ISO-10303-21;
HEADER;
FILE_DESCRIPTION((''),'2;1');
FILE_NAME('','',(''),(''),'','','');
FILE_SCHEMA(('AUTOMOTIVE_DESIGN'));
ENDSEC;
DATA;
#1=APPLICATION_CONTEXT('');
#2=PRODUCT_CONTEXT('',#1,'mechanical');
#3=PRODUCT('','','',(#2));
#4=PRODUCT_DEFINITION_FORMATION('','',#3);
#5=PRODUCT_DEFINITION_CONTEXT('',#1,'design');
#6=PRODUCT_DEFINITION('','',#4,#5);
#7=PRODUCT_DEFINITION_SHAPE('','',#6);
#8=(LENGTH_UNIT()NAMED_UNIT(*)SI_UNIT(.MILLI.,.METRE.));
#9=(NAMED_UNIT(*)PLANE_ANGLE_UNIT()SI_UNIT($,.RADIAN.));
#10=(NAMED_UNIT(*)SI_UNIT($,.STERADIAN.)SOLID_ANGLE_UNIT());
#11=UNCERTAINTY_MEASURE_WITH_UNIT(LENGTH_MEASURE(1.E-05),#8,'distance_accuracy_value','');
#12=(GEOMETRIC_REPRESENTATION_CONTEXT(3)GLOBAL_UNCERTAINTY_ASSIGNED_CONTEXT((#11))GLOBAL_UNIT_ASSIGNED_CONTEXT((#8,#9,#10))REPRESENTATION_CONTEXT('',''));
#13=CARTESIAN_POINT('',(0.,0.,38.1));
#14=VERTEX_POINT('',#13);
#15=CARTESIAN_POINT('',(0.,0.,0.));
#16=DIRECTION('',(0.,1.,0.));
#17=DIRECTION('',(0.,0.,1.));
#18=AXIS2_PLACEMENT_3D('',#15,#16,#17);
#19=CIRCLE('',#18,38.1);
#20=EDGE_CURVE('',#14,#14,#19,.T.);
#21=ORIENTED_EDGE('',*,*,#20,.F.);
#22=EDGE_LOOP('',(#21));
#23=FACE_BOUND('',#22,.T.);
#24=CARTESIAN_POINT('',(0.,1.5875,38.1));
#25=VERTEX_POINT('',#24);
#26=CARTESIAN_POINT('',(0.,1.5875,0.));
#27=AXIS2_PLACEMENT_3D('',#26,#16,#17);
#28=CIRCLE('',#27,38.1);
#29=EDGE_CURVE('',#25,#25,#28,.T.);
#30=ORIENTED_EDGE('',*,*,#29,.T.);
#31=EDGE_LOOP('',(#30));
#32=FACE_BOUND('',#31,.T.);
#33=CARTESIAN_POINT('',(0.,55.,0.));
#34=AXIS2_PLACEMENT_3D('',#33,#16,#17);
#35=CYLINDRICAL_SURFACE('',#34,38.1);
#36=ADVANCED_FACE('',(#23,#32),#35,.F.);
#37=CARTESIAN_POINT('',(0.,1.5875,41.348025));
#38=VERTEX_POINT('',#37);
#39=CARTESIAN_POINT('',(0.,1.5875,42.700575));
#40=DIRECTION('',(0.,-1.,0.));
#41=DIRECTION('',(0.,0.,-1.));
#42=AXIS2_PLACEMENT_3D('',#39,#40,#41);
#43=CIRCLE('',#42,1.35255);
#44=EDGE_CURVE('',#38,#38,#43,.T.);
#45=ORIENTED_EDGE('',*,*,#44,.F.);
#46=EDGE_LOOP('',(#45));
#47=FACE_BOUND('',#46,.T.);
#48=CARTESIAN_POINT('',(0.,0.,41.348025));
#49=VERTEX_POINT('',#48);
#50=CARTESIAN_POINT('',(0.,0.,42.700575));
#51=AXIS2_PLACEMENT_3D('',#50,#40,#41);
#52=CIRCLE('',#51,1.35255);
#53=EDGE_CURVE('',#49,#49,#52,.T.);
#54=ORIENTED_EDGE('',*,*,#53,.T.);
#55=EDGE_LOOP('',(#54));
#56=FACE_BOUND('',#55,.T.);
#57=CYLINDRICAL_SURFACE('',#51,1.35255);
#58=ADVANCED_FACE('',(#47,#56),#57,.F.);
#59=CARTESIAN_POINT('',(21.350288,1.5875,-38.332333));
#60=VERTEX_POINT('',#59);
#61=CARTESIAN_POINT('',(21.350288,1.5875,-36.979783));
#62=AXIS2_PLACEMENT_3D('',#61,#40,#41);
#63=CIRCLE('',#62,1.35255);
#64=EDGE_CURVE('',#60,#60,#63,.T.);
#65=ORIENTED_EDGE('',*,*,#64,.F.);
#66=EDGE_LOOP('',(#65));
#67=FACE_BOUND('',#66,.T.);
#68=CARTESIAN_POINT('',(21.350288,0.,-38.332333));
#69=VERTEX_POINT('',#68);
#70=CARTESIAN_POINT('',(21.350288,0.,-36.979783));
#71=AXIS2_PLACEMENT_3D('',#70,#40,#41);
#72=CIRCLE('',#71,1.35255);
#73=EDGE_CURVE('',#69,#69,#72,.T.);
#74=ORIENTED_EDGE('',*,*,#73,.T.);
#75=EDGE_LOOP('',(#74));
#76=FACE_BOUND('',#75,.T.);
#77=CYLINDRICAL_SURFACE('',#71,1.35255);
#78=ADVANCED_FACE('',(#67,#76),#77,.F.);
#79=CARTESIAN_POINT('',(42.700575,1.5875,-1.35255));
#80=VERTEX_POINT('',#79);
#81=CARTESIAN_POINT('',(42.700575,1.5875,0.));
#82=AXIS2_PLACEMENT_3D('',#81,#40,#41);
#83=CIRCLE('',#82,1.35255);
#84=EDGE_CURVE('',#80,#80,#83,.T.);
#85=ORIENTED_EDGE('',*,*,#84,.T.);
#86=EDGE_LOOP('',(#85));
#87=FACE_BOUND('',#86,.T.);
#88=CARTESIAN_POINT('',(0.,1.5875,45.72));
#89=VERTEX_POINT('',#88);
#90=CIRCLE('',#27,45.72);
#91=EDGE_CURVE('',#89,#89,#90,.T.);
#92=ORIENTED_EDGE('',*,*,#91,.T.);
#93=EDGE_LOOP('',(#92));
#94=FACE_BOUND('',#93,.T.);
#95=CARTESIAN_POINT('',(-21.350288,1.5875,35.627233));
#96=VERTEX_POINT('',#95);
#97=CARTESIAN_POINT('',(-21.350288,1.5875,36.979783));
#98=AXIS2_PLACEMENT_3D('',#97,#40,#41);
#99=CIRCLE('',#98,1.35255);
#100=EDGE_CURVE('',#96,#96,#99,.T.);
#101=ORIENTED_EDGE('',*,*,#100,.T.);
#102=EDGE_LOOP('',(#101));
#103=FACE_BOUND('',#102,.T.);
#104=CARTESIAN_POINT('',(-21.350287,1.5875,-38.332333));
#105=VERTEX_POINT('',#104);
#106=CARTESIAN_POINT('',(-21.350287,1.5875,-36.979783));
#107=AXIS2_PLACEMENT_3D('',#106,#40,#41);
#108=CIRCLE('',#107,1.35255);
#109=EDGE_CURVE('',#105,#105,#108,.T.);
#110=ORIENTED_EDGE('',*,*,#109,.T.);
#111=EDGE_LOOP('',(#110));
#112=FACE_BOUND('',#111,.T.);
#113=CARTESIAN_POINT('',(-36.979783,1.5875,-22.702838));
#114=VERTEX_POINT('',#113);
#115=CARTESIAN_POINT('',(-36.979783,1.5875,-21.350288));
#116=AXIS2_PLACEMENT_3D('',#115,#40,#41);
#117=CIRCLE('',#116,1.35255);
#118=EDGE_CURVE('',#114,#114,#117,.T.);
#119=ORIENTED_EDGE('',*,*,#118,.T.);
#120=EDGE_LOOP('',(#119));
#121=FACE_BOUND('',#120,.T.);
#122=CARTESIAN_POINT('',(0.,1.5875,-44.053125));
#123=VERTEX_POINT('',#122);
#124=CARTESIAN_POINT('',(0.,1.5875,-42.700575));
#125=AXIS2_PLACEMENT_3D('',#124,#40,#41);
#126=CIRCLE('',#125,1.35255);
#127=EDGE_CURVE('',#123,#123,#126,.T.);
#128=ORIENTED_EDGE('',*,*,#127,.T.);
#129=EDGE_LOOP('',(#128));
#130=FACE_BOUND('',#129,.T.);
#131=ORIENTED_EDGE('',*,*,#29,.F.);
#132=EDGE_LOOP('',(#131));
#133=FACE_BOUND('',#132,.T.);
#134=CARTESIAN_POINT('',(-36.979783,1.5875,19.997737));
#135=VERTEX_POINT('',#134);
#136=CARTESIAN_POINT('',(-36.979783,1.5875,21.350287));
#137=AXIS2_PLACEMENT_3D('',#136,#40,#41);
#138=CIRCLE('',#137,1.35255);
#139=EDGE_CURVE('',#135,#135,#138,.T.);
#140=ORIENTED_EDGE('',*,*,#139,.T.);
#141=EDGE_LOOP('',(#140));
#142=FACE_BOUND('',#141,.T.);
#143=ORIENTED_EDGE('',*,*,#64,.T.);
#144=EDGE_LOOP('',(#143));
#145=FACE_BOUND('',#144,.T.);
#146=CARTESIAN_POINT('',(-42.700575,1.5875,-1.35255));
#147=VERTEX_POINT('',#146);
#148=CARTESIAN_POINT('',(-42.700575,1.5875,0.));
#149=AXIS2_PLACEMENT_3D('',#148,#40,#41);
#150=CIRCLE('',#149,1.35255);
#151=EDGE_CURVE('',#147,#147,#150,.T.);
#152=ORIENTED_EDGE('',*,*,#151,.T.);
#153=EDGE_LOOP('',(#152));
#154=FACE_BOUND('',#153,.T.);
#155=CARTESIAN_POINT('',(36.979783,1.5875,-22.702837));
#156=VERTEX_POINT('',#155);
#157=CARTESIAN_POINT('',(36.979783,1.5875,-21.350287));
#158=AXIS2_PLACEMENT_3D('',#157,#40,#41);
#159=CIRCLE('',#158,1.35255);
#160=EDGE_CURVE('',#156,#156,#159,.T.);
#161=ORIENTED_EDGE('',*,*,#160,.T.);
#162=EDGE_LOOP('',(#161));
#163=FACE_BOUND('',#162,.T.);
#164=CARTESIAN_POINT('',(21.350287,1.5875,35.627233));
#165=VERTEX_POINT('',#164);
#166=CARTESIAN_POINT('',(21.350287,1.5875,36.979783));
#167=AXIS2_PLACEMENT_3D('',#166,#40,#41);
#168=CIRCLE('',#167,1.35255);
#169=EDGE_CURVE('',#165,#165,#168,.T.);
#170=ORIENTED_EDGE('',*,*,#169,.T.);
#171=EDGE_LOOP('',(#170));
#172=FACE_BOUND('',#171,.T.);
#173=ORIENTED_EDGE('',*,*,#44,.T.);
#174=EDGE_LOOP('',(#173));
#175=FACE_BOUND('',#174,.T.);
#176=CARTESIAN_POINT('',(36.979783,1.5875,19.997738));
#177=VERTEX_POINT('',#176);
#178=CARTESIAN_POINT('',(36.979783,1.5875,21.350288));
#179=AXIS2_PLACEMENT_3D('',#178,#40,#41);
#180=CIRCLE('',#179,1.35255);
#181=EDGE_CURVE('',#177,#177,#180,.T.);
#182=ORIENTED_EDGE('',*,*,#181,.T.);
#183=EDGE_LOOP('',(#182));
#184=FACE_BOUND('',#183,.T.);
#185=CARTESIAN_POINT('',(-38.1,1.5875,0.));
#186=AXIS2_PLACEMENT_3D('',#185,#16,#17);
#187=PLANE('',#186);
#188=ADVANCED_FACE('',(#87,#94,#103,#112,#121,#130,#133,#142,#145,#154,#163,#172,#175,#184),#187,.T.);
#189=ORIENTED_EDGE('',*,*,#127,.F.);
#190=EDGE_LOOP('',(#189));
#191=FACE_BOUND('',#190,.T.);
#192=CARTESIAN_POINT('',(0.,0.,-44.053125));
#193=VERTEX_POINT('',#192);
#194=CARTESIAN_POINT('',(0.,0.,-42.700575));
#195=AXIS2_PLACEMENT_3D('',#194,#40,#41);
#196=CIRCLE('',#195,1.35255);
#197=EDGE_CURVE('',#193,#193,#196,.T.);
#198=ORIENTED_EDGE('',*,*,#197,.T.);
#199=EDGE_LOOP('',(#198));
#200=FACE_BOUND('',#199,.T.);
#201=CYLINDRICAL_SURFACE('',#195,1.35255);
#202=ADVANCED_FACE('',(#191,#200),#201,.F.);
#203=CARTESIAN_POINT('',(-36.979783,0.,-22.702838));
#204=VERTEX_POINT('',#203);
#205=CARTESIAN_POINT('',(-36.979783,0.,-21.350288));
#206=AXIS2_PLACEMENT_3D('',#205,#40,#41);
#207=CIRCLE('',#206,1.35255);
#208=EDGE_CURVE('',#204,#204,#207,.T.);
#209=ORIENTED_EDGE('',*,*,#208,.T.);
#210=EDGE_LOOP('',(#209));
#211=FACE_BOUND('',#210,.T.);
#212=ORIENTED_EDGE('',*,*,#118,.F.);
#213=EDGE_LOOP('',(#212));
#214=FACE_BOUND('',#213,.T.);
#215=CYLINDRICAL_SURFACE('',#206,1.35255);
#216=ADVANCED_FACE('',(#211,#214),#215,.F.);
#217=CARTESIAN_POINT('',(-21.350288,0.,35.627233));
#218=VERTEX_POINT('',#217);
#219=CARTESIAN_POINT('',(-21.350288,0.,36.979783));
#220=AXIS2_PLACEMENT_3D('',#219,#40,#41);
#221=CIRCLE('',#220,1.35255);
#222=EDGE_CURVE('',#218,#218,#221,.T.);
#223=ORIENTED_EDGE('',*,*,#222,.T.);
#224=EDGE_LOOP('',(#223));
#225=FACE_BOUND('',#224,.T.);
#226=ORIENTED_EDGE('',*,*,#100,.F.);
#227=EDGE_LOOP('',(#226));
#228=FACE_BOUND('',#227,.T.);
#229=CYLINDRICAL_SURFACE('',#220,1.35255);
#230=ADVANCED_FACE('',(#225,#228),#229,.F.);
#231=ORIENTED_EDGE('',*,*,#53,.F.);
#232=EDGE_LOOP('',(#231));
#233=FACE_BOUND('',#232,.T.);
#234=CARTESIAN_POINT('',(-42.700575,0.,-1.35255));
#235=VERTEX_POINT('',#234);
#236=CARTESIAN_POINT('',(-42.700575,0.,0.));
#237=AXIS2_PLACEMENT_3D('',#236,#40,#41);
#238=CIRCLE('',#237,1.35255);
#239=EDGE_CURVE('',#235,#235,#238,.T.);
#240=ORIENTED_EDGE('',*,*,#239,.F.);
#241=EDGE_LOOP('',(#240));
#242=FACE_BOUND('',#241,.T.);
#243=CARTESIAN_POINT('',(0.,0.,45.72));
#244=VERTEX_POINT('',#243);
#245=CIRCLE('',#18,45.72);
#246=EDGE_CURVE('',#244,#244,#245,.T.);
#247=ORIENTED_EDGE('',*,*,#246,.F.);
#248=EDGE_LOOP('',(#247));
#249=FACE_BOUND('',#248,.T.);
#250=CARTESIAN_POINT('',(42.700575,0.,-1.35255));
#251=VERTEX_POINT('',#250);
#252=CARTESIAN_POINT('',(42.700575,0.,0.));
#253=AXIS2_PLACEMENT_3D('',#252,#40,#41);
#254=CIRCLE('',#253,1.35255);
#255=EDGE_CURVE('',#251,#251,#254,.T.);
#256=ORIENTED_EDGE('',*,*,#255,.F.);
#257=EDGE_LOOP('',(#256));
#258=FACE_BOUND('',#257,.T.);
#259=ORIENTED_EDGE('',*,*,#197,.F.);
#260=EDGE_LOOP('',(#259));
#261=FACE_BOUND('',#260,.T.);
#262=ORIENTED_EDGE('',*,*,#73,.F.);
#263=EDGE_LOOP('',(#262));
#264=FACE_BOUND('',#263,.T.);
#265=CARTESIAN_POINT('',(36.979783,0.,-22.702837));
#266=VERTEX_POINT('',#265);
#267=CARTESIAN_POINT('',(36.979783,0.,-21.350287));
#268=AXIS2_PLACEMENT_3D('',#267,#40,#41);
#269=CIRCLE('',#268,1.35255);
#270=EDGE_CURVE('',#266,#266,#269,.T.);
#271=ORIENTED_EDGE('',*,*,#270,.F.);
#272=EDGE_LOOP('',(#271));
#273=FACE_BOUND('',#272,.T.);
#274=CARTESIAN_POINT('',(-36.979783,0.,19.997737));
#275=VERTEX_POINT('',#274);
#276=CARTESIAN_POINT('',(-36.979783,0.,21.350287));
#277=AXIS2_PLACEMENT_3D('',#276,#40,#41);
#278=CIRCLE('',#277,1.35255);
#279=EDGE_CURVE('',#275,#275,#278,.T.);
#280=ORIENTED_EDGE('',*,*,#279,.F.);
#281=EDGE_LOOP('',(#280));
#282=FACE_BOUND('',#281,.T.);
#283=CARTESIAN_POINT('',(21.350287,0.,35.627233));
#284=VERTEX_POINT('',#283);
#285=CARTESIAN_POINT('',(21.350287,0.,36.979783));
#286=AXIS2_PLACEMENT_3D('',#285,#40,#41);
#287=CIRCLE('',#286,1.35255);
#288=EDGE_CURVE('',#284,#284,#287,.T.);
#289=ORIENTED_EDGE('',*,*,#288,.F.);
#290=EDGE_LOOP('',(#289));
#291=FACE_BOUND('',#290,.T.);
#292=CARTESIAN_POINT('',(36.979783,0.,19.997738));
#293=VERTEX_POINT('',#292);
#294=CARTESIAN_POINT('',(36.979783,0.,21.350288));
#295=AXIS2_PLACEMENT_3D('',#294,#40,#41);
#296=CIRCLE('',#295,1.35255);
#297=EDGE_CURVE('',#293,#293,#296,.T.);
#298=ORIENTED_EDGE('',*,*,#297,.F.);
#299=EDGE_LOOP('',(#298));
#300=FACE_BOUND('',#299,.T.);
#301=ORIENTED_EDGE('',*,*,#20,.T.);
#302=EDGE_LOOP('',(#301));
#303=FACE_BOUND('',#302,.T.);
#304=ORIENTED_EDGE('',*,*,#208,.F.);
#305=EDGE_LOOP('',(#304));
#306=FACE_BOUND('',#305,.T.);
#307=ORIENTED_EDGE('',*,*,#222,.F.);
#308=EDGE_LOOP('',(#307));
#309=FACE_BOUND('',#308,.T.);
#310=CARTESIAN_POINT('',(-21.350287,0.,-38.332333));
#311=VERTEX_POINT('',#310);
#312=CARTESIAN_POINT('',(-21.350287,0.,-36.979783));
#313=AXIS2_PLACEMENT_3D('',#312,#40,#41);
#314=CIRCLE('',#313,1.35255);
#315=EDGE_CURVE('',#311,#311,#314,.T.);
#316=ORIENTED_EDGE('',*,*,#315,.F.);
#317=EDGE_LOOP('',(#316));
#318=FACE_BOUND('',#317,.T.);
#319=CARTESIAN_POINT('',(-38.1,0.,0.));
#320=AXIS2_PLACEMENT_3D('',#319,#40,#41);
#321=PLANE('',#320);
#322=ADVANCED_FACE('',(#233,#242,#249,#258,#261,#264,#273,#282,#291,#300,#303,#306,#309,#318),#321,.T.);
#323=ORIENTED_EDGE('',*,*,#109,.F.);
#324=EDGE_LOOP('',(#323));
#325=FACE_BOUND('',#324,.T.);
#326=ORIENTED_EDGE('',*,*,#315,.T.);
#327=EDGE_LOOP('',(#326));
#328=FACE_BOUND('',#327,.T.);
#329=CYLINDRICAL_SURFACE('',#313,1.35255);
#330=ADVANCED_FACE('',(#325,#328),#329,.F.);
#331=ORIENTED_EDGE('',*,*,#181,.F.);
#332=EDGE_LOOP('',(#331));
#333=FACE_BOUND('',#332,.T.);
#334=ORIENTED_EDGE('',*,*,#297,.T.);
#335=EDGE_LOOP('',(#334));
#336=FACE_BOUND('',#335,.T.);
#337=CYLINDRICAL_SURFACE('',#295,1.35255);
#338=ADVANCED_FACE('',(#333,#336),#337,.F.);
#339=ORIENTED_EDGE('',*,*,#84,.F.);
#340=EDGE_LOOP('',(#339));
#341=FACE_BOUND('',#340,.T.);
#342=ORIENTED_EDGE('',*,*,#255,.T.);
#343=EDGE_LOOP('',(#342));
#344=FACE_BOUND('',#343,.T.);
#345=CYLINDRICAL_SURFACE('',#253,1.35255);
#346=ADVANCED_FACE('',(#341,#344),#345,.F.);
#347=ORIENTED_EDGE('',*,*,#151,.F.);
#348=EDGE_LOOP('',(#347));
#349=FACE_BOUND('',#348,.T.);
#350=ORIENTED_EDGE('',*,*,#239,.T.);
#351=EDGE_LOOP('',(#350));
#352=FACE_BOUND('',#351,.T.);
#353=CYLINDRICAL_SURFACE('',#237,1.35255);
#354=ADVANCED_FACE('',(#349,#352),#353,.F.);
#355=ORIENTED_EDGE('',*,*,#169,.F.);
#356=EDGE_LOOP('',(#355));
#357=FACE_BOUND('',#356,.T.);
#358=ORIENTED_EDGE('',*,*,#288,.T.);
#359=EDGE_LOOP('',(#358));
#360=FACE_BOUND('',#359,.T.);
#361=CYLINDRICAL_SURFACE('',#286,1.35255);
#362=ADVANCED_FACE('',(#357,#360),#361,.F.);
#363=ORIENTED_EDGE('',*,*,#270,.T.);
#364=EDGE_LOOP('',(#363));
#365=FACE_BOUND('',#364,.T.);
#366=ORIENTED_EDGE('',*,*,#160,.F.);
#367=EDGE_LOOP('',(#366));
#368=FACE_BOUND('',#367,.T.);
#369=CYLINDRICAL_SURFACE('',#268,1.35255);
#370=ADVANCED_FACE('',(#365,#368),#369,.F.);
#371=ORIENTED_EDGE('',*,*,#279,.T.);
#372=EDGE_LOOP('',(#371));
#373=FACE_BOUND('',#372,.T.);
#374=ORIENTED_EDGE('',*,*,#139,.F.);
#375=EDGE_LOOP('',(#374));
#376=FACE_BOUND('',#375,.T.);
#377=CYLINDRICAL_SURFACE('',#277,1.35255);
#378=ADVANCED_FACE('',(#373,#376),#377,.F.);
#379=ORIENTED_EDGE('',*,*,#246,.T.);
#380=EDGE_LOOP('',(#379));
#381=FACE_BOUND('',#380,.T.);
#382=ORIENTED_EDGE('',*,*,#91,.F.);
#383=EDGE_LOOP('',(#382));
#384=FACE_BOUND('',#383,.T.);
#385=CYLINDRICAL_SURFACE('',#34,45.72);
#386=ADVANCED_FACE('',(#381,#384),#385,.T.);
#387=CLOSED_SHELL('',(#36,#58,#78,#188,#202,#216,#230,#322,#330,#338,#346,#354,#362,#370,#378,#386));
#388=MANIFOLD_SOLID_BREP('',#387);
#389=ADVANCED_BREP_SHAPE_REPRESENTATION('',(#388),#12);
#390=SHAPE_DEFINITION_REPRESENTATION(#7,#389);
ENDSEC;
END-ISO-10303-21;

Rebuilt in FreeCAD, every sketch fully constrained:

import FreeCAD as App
import Part
import Sketcher

V = App.Vector
Q = App.Units.Quantity

doc = App.newDocument("Part")
body = doc.addObject("PartDesign::Body", "Body")

# Sketch on XY plane
sketch1 = body.newObject("Sketcher::SketchObject", "Sketch")
sketch1.AttachmentSupport = (doc.getObject("XY_Plane"), [""])
sketch1.MapMode = "FlatFace"
sketch1.addGeometry([
    Part.LineSegment(V(-45.7, 1.6, 0), V(-45.7, 0, 0)),
    Part.LineSegment(V(-45.7, 0, 0), V(-38.1, 0, 0)),
    Part.LineSegment(V(-38.1, 0, 0), V(-38.1, 1.6, 0)),
    Part.LineSegment(V(-38.1, 1.6, 0), V(-45.7, 1.6, 0)),
], False)
sketch1.addConstraint([
    Sketcher.Constraint("Coincident", 0, 2, 1, 1),
    Sketcher.Constraint("Coincident", 1, 2, 2, 1),
    Sketcher.Constraint("Coincident", 2, 2, 3, 1),
    Sketcher.Constraint("Coincident", 3, 2, 0, 1),
    Sketcher.Constraint("Vertical", 0),
    Sketcher.Constraint("Horizontal", 1),
    Sketcher.Constraint("Vertical", 2),
    Sketcher.Constraint("Horizontal", 3),
    Sketcher.Constraint("PointOnObject", 0, 2, -1),
    Sketcher.Constraint("DistanceX", 1, 1, 1, 2, Q("0.3 in")),
    Sketcher.Constraint("DistanceX", 0, 2, -1, 1, Q("1.8 in")),
    Sketcher.Constraint("DistanceY", 0, 2, 0, 1, Q("0.0625 in")),
])
revolution = body.newObject("PartDesign::Revolution", "Revolution")
revolution.Profile = sketch1
revolution.ReferenceAxis = (sketch1, ["V_Axis"])
revolution.Angle = 360

# Sketch on XZ plane
sketch2 = body.newObject("Sketcher::SketchObject", "Sketch001")
sketch2.AttachmentSupport = (doc.getObject("XZ_Plane"), [""])
sketch2.MapMode = "FlatFace"
sketch2.addGeometry(Part.Circle(V(-42.7, 0, 0), V(0, 0, 1), 1.4), False)
sketch2.addConstraint([
    Sketcher.Constraint("PointOnObject", 0, 3, -1),
    Sketcher.Constraint("Diameter", 0, Q("0.1065 in")),
    Sketcher.Constraint("DistanceX", 0, 3, -1, 1, Q("42.700575 mm")),
])
doc.recompute()
hole = body.newObject("PartDesign::Hole", "Hole")
hole.Profile = sketch2
hole.ThreadType = "None"
hole.Diameter = Q("0.1065 in")
hole.DepthType = "ThroughAll"
doc.recompute()

polarpattern = body.newObject("PartDesign::PolarPattern", "PolarPattern")
polarpattern.Originals = [hole]
polarpattern.Axis = (doc.getObject("Y_Axis"), [""])
polarpattern.Angle = 360
polarpattern.Occurrences = 12
body.Tip = polarpattern

doc.recompute()
